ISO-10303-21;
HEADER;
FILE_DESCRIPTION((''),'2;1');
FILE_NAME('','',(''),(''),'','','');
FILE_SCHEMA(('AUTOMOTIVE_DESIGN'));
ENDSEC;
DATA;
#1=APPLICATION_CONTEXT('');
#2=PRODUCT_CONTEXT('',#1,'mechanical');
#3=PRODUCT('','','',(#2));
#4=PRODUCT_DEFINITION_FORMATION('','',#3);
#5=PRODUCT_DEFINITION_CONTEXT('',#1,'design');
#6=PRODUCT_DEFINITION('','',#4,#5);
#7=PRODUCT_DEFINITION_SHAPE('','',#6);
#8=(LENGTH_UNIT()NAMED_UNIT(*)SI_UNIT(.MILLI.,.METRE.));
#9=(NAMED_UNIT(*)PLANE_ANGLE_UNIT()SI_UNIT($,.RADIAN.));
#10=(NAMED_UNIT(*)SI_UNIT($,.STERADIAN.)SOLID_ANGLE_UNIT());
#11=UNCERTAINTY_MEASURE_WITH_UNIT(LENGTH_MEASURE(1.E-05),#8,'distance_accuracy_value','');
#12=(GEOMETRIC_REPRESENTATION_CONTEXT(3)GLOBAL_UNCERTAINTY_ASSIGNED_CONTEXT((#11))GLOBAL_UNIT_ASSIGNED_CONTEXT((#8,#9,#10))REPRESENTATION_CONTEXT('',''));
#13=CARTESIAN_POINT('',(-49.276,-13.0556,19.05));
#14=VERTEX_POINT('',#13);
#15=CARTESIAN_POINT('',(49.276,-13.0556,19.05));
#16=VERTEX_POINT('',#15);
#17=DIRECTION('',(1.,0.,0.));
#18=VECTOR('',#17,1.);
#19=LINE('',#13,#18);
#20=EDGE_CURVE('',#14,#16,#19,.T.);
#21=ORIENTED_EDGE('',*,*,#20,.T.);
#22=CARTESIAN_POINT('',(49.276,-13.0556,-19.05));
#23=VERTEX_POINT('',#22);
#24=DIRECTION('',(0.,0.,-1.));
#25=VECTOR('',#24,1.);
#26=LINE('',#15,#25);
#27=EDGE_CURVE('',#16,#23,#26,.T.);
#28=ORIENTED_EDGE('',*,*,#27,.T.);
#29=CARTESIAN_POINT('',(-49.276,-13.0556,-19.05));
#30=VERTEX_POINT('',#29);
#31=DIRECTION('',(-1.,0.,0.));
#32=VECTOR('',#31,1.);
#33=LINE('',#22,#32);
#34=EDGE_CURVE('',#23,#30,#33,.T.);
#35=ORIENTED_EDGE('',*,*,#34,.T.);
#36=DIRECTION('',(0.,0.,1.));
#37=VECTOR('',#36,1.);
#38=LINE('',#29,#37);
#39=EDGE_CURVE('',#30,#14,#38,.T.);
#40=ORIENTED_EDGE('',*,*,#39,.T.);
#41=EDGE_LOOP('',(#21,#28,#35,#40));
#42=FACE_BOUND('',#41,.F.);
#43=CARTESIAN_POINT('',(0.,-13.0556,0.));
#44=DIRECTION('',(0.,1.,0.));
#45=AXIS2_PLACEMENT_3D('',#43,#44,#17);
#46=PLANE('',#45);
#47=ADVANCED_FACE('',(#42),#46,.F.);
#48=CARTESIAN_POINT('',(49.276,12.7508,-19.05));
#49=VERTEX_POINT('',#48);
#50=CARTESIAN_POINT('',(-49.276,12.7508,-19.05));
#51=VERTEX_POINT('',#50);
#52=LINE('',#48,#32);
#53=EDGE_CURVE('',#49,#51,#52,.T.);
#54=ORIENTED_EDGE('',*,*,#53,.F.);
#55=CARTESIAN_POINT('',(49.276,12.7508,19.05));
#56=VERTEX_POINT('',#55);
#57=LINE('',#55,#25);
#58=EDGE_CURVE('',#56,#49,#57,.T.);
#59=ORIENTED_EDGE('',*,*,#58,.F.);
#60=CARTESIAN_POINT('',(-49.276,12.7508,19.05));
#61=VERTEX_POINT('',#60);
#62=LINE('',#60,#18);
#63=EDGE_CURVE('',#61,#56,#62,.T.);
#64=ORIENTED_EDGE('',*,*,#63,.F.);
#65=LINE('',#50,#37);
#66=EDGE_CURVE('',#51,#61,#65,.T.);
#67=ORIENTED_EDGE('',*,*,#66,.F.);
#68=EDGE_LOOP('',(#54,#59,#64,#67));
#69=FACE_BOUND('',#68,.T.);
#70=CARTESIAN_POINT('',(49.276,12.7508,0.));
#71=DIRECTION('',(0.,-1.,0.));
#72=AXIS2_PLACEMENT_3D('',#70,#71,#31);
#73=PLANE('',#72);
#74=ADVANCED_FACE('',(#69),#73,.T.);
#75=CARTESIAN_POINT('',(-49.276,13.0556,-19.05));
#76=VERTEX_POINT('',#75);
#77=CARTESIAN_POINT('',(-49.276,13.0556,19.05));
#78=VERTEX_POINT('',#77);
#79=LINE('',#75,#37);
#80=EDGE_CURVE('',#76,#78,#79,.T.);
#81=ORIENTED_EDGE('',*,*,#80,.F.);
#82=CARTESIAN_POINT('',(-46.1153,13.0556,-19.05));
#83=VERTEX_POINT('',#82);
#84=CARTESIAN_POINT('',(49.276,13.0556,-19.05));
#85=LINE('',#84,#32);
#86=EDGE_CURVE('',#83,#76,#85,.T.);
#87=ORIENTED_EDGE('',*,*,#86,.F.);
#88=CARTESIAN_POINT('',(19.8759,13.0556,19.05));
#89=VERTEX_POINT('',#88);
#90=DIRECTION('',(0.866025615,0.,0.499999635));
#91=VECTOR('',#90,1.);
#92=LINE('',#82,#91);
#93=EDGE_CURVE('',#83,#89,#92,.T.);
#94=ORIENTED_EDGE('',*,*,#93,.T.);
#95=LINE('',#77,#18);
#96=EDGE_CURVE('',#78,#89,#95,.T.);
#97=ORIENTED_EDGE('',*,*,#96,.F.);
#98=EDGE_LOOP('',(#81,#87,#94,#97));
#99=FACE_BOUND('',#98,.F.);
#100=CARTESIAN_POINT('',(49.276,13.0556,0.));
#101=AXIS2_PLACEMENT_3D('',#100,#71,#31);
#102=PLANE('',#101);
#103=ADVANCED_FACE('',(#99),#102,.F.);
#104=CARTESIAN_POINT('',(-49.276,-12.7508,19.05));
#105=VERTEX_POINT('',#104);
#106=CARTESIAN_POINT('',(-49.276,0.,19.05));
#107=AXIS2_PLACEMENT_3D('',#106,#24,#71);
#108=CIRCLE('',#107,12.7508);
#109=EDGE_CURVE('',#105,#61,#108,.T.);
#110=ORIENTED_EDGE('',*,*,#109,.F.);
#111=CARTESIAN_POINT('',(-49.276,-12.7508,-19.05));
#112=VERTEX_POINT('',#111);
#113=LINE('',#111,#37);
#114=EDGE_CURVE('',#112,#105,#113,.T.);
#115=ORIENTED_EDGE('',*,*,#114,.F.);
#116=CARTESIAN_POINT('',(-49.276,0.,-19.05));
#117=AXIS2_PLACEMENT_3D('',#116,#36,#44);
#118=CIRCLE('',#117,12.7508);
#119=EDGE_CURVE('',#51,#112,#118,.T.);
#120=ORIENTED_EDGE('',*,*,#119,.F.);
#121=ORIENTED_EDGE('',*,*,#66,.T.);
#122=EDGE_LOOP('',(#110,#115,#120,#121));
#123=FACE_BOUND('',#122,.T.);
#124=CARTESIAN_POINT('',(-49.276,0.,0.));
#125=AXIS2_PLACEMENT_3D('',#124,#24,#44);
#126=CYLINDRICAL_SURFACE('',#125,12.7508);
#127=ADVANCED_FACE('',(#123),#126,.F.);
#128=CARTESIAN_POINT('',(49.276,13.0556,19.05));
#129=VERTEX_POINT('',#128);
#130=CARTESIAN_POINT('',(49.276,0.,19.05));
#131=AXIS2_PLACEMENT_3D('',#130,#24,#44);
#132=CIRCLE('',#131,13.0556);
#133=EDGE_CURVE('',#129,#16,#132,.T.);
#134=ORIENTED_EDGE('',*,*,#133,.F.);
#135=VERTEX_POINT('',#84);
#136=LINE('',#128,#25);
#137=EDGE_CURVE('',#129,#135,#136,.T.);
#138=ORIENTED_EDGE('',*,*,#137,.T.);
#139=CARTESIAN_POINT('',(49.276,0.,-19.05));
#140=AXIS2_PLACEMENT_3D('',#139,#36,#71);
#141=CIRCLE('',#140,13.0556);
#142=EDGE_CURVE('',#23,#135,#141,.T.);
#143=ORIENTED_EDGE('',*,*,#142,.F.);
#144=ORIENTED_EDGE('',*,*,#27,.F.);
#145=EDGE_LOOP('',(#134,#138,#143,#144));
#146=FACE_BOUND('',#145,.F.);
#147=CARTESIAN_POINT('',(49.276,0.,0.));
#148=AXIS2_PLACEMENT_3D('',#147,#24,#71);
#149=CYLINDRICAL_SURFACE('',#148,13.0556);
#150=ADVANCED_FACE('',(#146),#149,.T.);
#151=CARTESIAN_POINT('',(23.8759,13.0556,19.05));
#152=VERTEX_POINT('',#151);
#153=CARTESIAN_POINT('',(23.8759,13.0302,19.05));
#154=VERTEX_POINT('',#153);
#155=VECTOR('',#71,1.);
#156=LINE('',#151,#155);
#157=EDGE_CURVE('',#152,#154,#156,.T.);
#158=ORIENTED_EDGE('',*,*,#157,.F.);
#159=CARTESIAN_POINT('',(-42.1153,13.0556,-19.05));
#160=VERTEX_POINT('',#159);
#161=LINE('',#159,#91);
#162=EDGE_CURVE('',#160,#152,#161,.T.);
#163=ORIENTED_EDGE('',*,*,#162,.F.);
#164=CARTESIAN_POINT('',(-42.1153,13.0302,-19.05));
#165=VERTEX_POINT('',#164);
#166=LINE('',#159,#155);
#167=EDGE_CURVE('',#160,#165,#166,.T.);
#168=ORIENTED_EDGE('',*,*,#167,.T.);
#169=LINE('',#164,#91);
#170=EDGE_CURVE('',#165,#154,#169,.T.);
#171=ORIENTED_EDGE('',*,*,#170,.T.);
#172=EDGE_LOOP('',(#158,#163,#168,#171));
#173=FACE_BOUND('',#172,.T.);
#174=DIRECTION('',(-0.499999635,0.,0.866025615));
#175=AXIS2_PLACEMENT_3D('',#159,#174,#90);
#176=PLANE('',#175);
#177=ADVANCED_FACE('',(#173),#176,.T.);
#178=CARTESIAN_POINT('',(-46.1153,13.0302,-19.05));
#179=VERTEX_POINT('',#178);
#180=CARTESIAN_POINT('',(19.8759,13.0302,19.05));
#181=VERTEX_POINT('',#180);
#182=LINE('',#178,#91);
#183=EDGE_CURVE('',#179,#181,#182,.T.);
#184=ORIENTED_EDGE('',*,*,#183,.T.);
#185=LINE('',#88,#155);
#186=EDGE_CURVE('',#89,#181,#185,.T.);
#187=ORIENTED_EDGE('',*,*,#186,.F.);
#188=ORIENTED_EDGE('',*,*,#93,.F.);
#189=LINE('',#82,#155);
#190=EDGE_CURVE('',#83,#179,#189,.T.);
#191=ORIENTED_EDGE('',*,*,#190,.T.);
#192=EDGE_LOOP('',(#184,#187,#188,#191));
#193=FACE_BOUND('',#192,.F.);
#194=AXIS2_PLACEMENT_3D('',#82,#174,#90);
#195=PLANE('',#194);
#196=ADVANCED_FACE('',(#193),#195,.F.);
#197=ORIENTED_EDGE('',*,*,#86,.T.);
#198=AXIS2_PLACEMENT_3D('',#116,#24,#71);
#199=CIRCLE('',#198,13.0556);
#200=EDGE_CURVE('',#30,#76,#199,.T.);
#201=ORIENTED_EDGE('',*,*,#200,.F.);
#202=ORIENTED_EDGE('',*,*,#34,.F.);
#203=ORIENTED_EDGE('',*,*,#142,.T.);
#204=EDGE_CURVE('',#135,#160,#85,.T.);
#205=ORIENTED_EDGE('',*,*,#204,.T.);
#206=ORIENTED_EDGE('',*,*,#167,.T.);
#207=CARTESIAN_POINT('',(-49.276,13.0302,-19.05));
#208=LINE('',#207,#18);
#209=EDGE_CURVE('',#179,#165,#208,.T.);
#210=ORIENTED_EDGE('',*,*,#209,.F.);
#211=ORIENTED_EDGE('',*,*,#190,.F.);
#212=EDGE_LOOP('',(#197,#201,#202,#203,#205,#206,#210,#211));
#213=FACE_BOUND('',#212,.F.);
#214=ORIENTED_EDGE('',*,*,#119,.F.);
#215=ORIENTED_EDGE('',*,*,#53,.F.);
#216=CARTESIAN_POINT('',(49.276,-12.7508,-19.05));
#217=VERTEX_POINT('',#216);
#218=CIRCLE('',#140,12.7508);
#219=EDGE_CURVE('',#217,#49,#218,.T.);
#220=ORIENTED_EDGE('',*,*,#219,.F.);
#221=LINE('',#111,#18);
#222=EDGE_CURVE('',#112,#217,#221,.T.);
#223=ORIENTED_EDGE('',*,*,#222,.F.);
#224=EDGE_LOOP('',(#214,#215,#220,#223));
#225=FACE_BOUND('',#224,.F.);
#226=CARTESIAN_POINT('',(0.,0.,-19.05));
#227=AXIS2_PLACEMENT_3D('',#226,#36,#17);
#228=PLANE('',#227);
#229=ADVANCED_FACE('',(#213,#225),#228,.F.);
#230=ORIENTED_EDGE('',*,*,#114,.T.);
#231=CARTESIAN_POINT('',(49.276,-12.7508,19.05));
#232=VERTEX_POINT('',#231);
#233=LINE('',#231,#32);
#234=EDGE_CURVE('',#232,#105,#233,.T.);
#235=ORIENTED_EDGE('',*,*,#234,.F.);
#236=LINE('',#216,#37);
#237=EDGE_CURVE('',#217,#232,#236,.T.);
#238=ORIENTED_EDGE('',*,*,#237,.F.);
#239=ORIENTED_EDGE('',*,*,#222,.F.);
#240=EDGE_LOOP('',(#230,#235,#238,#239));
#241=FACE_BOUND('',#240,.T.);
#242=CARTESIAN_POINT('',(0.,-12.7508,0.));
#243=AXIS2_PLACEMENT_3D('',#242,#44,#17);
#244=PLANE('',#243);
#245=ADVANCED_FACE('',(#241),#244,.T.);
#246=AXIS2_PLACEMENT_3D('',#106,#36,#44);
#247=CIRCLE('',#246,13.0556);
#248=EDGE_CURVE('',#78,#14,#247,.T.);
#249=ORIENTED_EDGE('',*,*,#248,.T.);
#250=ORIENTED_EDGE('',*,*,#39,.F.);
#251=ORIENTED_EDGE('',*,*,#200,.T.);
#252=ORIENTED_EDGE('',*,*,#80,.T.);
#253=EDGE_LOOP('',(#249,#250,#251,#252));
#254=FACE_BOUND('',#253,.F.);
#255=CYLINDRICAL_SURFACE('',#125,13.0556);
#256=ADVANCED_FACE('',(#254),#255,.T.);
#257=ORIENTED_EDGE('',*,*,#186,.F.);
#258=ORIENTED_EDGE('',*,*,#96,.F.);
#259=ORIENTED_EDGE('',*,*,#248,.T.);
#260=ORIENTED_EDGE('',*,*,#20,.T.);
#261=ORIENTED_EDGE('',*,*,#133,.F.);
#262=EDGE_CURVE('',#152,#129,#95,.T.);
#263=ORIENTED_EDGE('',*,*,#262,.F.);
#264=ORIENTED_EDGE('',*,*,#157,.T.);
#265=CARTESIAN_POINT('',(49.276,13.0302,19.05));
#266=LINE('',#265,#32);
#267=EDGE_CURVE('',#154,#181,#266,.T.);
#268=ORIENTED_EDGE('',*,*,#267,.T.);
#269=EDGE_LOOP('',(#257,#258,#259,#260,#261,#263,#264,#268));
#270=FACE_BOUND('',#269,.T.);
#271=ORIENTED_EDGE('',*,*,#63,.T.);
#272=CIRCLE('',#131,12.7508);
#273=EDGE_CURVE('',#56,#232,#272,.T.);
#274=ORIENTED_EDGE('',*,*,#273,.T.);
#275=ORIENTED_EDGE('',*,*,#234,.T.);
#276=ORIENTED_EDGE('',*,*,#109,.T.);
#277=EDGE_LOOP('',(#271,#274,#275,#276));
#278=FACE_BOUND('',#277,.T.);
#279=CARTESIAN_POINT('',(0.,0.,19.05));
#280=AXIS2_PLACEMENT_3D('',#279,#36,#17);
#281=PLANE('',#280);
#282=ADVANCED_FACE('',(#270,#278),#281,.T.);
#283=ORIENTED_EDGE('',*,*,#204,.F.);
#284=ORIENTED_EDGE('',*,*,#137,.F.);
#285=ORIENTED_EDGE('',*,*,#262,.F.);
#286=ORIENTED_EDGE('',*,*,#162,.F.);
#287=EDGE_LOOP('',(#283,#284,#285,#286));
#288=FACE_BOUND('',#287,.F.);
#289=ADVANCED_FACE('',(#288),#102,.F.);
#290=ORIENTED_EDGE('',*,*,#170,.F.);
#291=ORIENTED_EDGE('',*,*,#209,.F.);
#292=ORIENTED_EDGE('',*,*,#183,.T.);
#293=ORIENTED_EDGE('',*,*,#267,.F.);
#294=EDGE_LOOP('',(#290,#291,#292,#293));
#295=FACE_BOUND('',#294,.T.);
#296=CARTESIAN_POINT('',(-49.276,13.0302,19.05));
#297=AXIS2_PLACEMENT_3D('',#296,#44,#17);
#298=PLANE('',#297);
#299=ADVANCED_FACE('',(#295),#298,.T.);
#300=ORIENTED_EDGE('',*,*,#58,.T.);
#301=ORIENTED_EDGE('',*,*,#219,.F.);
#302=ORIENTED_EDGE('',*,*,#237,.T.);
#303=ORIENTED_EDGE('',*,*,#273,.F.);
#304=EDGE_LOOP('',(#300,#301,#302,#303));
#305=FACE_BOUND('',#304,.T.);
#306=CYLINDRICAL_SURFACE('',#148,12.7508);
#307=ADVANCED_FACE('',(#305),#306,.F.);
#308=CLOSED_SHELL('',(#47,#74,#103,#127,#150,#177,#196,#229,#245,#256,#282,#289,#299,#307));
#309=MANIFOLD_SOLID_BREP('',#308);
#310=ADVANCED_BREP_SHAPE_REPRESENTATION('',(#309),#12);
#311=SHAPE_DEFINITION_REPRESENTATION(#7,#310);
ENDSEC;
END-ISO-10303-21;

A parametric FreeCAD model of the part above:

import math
import FreeCAD as App
import Part
import Sketcher
from FreeCAD import Vector
Q = App.Units.Quantity


def add_polygon(sketch, points):
    """Adds a closed chain of lines whose ends are joined by coincident constraints."""
    first, n = sketch.GeometryCount, len(points)
    for a, b in zip(points, points[1:] + points[:1]):
        sketch.addGeometry(Part.LineSegment(App.Vector(*a, 0), App.Vector(*b, 0)), False)
    for i in range(n):
        sketch.addConstraint(Sketcher.Constraint("Coincident", first + i, 2, first + (i + 1) % n, 1))

doc = App.newDocument("Part")
body = doc.addObject("PartDesign::Body", "Body")

sketch1 = body.newObject("Sketcher::SketchObject", "Sketch")
sketch1.AttachmentSupport = (doc.getObject("XY_Plane"), [""])
sketch1.MapMode = "FlatFace"
sketch1.addGeometry([
    Part.LineSegment(Vector(49, 13, 0), Vector(-49, 13, 0)),
    Part.ArcOfCircle(Part.Circle(Vector(-49, 0, 0), Vector(0, 0, 1), 13), math.radians(90), math.radians(270)),
    Part.LineSegment(Vector(-49, -13, 0), Vector(49, -13, 0)),
    Part.ArcOfCircle(Part.Circle(Vector(49, 0, 0), Vector(0, 0, 1), 13), math.radians(-90), math.radians(90)),
    Part.ArcOfCircle(Part.Circle(Vector(49, 0, 0), Vector(0, 0, 1), 13), math.radians(-90), math.radians(90)),
    Part.LineSegment(Vector(49, -13, 0), Vector(-49, -13, 0)),
    Part.ArcOfCircle(Part.Circle(Vector(-49, 0, 0), Vector(0, 0, 1), 13), math.radians(90), math.radians(270)),
    Part.LineSegment(Vector(-49, 13, 0), Vector(49, 13, 0)),
], False)
sketch1.addConstraint([
    Sketcher.Constraint("Tangent", 0, 2, 1, 1),
    Sketcher.Constraint("Tangent", 1, 2, 2, 1),
    Sketcher.Constraint("Tangent", 2, 2, 3, 1),
    Sketcher.Constraint("Tangent", 3, 2, 0, 1),
    Sketcher.Constraint("Tangent", 4, 1, 5, 1),
    Sketcher.Constraint("Tangent", 5, 2, 6, 2),
    Sketcher.Constraint("Tangent", 6, 1, 7, 1),
    Sketcher.Constraint("Tangent", 7, 2, 4, 2),
    Sketcher.Constraint("Horizontal", 0),
    Sketcher.Constraint("Horizontal", 2),
    Sketcher.Constraint("Horizontal", 5),
    Sketcher.Constraint("Horizontal", 7),
    Sketcher.Constraint("Coincident", 4, 3, 3, 3),
    Sketcher.Constraint("Symmetric", 1, 3, 3, 3, -1, 1),
    Sketcher.Constraint("Vertical", 6, 3, 0, 2),
    Sketcher.Constraint("Radius", 4, Q("0.502 in")),
    Sketcher.Constraint("DistanceX", 0, 2, 0, 1, Q("3.88 in")),
    Sketcher.Constraint("Radius", 1, Q("0.514 in")),
])
pad1 = body.newObject("PartDesign::Pad", "Pad")
pad1.Profile = sketch1
pad1.Length = Q("1.5 in")
pad1.Midplane = True

sketch2 = body.newObject("Sketcher::SketchObject", "Sketch001")
sketch2.AttachmentSupport = (doc.getObject("XZ_Plane"), [""])
sketch2.MapMode = "FlatFace"
sketch2.AttachmentOffset = App.Placement(Vector(0, 0, -0.514 * 25.4), App.Rotation())
add_polygon(sketch2, [(-42.1, -19.1), (-46.1, -19.1), (19.9, 19.1), (23.9, 19.1)])
sketch2.addConstraint([
    Sketcher.Constraint("Horizontal", 0),
    Sketcher.Constraint("Horizontal", 2),
    Sketcher.Constraint("Parallel", 1, 3),
    Sketcher.Constraint("Angle", 1, Q("30 deg")),
    Sketcher.Constraint("Distance", 1, Q("3 in")),
    Sketcher.Constraint("DistanceY", 0, 2, -1, 1, Q("0.75 in")),
    Sketcher.Constraint("DistanceX", -1, 1, 2, 2, Q("0.94 in")),
    Sketcher.Constraint("DistanceX", 0, 2, 0, 1, 4.0),
])
pocket1 = body.newObject("PartDesign::Pocket", "Pocket")
pocket1.Profile = sketch2
pocket1.Length = Q("0.001 in")
pocket1.Reversed = True

doc.recompute()
